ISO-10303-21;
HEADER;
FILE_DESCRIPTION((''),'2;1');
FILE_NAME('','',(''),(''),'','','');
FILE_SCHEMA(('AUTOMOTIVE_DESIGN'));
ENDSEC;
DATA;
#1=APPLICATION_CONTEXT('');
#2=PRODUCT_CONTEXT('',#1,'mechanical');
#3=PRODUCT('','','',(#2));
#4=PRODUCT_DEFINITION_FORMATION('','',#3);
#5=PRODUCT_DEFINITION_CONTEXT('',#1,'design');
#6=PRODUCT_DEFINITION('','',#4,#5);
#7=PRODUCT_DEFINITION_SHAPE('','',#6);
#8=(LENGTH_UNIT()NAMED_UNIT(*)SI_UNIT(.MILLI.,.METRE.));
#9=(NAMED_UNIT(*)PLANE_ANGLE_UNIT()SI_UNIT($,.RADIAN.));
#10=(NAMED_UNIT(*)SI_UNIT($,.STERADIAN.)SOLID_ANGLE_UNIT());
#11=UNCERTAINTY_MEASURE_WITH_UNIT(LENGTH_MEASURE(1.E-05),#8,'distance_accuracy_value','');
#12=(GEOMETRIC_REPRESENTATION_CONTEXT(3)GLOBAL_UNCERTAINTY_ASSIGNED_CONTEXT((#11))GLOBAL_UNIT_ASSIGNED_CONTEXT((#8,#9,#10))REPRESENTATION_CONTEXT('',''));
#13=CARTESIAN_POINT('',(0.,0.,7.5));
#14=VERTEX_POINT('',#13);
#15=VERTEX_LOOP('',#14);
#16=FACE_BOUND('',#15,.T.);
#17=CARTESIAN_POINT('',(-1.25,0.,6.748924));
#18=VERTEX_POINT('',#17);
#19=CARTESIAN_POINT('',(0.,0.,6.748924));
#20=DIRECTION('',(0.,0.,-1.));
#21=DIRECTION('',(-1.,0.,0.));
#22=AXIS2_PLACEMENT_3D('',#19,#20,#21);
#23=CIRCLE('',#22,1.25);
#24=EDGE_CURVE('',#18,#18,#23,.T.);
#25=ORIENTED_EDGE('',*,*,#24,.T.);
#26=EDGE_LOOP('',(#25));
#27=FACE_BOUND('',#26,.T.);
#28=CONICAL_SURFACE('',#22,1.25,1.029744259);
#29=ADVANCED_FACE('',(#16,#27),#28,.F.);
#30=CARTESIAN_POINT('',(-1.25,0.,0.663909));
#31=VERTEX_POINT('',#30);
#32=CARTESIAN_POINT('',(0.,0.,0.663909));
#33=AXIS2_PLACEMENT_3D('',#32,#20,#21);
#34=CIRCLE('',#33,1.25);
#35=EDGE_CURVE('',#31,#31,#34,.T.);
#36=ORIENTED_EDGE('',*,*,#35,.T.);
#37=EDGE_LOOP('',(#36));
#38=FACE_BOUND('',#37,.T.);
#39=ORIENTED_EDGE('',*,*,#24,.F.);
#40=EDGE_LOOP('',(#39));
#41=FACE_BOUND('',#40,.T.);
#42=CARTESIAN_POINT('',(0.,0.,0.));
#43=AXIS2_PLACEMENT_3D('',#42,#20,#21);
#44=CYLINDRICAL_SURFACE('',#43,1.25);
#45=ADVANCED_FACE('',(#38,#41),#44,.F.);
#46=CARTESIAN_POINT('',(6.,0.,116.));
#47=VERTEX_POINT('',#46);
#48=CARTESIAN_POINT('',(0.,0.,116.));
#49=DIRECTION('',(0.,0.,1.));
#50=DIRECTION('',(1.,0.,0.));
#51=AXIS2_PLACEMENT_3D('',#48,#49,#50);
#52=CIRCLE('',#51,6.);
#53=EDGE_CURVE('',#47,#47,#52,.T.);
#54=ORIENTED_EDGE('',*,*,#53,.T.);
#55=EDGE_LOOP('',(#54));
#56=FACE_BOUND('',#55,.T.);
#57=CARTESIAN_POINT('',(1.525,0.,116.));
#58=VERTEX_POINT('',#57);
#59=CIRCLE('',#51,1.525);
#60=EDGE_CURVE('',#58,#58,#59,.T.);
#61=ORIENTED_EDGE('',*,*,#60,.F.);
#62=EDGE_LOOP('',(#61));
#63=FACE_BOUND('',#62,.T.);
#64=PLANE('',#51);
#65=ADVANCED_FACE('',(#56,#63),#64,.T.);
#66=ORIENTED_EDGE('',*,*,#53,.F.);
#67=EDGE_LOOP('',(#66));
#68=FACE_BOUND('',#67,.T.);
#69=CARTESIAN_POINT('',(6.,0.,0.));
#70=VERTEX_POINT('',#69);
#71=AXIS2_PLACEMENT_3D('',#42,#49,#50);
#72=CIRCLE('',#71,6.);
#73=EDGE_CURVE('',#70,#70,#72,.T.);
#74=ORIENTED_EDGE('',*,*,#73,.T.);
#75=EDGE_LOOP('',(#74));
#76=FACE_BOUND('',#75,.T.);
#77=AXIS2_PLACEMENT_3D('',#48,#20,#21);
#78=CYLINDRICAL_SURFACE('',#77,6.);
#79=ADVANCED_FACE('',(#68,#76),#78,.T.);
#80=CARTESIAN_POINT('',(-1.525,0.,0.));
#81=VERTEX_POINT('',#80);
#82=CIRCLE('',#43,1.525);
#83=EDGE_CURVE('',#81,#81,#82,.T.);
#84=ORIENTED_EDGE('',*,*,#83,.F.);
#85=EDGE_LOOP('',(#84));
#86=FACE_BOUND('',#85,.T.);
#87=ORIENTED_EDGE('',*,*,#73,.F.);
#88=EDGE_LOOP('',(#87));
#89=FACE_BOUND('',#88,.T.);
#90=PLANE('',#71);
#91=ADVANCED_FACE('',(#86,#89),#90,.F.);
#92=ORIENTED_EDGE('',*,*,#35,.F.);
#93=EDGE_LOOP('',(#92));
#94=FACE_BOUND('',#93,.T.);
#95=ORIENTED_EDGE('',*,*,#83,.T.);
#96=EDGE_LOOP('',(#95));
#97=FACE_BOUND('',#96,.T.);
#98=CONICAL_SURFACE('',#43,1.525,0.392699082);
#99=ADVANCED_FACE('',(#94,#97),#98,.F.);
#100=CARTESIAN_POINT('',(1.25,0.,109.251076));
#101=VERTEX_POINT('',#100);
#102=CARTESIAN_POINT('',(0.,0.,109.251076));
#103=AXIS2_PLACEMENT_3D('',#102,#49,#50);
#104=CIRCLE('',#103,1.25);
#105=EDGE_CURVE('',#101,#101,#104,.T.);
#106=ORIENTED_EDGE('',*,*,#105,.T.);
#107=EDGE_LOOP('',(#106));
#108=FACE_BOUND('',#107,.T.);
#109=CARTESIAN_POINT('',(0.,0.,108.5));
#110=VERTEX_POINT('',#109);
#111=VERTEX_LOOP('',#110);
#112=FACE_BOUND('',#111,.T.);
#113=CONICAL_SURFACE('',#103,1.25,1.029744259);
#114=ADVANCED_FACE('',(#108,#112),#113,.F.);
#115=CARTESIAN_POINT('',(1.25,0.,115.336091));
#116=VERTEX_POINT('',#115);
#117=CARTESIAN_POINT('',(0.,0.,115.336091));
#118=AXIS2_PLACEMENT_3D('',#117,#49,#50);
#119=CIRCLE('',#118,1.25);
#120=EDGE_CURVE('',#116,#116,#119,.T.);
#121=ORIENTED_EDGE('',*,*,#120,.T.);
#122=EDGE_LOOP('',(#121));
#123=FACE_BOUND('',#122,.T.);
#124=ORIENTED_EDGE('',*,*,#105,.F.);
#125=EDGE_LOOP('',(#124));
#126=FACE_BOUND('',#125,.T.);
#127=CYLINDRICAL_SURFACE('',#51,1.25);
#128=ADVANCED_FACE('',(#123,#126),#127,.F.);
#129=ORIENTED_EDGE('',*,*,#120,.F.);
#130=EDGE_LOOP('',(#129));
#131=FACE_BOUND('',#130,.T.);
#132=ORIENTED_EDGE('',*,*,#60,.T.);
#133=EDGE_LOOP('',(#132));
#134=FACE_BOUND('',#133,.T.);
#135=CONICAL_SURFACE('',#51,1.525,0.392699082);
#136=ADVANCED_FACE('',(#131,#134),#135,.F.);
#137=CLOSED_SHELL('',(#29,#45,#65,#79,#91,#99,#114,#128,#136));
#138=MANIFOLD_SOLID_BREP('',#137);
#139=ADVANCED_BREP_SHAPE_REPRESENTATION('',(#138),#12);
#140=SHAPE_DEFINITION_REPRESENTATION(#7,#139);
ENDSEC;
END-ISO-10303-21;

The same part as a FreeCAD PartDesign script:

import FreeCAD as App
import Part
import Sketcher

V = App.Vector
Q = App.Units.Quantity

doc = App.newDocument("Part")
params = doc.addObject("Spreadsheet::Sheet", "Params")
for row, (alias, value) in enumerate([
    ("sketch1_diameter", "12 mm"),
    ("pad1_length", "116 mm"),
    ("sketch2_diameter", "2.5 mm"),
    ("hole_diameter", "2.5 mm"),
    ("hole_depth", "6.748924 mm"),
    ("hole_csink_diameter", "3.05 mm"),
    ("sketch3_diameter", "2.5 mm"),
    ("hole2_diameter", "2.5 mm"),
    ("hole2_depth", "6.748924 mm"),
    ("hole2_csink_diameter", "3.05 mm"),
], start=1):
    params.set(f"A{row}", alias)
    params.set(f"B{row}", "=" + value)
    params.setAlias(f"B{row}", alias)

body = doc.addObject("PartDesign::Body", "Body")

sketch1 = body.newObject("Sketcher::SketchObject", "Sketch")
sketch1.AttachmentSupport = (doc.getObject("XY_Plane"), [""])
sketch1.MapMode = "FlatFace"
sketch1.addGeometry(Part.Circle(V(0, 0, 0), V(0, 0, 1), 6), False)
sketch1.addConstraint([
    Sketcher.Constraint("Coincident", 0, 3, -1, 1),
    Sketcher.Constraint("Diameter", 0, Q("12 mm")),
])
sketch1.setExpression("Constraints[1]", "Params.sketch1_diameter")
pad1 = body.newObject("PartDesign::Pad", "Pad")
pad1.Profile = sketch1
pad1.setExpression("Length", "Params.pad1_length")

sketch2 = body.newObject("Sketcher::SketchObject", "Sketch001")
sketch2.AttachmentSupport = (doc.getObject("XY_Plane"), [""])
sketch2.MapMode = "FlatFace"
sketch2.AttachmentOffset = App.Placement(V(0, 0, 116), App.Rotation())
sketch2.addGeometry(Part.Circle(V(0, 0, 0), V(0, 0, 1), 1.2), False)
sketch2.addConstraint([
    Sketcher.Constraint("Coincident", 0, 3, -1, 1),
    Sketcher.Constraint("Diameter", 0, Q("2.5 mm")),
])
sketch2.setExpression("Constraints[1]", "Params.sketch2_diameter")
doc.recompute()
hole = body.newObject("PartDesign::Hole", "Hole")
hole.Profile = sketch2
hole.ThreadType = "None"
hole.setExpression("Diameter", "Params.hole_diameter")
hole.DepthType = "Dimension"
hole.setExpression("Depth", "Params.hole_depth")
hole.DrillPoint = "Angled"
hole.DrillPointAngle = 118
hole.HoleCutType = "Countersink"
hole.setExpression("HoleCutDiameter", "Params.hole_csink_diameter")
hole.HoleCutCountersinkAngle = 45

sketch3 = body.newObject("Sketcher::SketchObject", "Sketch002")
sketch3.AttachmentSupport = (doc.getObject("XY_Plane"), [""])
sketch3.MapMode = "FlatFace"
sketch3.addGeometry(Part.Circle(V(0, 0, 0), V(0, 0, 1), 1.2), False)
sketch3.addConstraint([
    Sketcher.Constraint("Coincident", 0, 3, -1, 1),
    Sketcher.Constraint("Diameter", 0, Q("2.5 mm")),
])
sketch3.setExpression("Constraints[1]", "Params.sketch3_diameter")
doc.recompute()
hole2 = body.newObject("PartDesign::Hole", "Hole001")
hole2.Profile = sketch3
hole2.ThreadType = "None"
hole2.setExpression("Diameter", "Params.hole2_diameter")
hole2.DepthType = "Dimension"
hole2.setExpression("Depth", "Params.hole2_depth")
hole2.DrillPoint = "Angled"
hole2.DrillPointAngle = 118
hole2.HoleCutType = "Countersink"
hole2.setExpression("HoleCutDiameter", "Params.hole2_csink_diameter")
hole2.HoleCutCountersinkAngle = 45
hole2.Reversed = True

doc.recompute()
